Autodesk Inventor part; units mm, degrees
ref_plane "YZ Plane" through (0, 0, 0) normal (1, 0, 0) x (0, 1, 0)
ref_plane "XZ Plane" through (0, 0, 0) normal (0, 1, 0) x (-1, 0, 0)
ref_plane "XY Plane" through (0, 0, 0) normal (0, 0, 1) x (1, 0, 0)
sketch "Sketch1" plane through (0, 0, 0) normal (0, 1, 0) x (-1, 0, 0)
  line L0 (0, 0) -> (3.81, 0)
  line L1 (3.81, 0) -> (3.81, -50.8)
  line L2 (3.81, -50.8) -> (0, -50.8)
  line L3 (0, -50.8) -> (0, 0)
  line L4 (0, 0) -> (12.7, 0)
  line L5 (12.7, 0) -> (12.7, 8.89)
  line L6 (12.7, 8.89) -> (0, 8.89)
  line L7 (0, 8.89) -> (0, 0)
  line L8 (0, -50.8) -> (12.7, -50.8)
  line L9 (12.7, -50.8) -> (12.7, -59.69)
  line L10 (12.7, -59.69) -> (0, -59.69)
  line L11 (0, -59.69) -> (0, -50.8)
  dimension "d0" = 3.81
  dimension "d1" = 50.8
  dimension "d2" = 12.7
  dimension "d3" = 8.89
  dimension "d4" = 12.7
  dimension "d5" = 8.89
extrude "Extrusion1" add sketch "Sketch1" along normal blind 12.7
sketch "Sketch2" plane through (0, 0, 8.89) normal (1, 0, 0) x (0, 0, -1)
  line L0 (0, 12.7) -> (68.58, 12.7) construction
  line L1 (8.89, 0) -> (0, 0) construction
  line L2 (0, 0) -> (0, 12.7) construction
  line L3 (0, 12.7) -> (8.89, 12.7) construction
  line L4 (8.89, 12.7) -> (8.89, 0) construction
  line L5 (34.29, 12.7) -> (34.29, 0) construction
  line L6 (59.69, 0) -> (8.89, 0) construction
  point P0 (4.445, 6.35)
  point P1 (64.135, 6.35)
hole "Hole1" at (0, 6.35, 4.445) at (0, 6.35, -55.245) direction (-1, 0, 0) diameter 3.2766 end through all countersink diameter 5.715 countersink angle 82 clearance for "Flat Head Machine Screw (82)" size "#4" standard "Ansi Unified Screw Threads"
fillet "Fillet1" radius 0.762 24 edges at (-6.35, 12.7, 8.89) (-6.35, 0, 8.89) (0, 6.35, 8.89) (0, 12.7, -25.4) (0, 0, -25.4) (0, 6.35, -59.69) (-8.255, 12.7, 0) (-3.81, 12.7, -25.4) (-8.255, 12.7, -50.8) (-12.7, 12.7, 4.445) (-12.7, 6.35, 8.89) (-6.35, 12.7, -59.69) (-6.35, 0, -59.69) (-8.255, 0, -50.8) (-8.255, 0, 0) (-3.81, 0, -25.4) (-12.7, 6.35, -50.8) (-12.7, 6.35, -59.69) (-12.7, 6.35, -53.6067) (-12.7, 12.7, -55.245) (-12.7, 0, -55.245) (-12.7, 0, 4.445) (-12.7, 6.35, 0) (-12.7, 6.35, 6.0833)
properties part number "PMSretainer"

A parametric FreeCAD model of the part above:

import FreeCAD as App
import Part
import Sketcher
Q = App.Units.Quantity


def edges_at(feature, points):
    """Names of the edges that pass closest to the given points."""
    edges = feature.Shape.Edges
    near = lambda p: min(range(len(edges)), key=lambda i: edges[i].distToShape(Part.Vertex(*p))[0])
    return sorted({f"Edge{near(p) + 1}" for p in points})


def add_polygon(sketch, points):
    """Adds a closed chain of lines whose ends are joined by coincident constraints."""
    first, n = sketch.GeometryCount, len(points)
    for a, b in zip(points, points[1:] + points[:1]):
        sketch.addGeometry(Part.LineSegment(App.Vector(*a, 0), App.Vector(*b, 0)), False)
    for i in range(n):
        sketch.addConstraint(Sketcher.Constraint("Coincident", first + i, 2, first + (i + 1) % n, 1))

doc = App.newDocument("Part")
body = doc.addObject("PartDesign::Body", "Body")

# Sketch on XZ plane
sketch1 = body.newObject("Sketcher::SketchObject", "Sketch")
sketch1.AttachmentSupport = (doc.getObject("XZ_Plane"), [""])
sketch1.MapMode = "FlatFace"
add_polygon(sketch1, [(0, 9), (0, -60), (-13, -60), (-13, -51), (-4, -51), (-4, 0), (-13, 0), (-13, 9)])  # lines 0-7
sketch1.addConstraint(Sketcher.Constraint("Vertical", 0))
sketch1.addConstraint(Sketcher.Constraint("Horizontal", 1))
sketch1.addConstraint(Sketcher.Constraint("Vertical", 2))
sketch1.addConstraint(Sketcher.Constraint("Horizontal", 3))
sketch1.addConstraint(Sketcher.Constraint("Vertical", 4))
sketch1.addConstraint(Sketcher.Constraint("Horizontal", 5))
sketch1.addConstraint(Sketcher.Constraint("Vertical", 6))
sketch1.addConstraint(Sketcher.Constraint("Horizontal", 7))
sketch1.addConstraint(Sketcher.Constraint("PointOnObject", 0, 2, -2))
sketch1.addConstraint(Sketcher.Constraint("PointOnObject", 4, 2, -1))
sketch1.addConstraint(Sketcher.Constraint("Vertical", 2, 2, 5, 2))
sketch1.addConstraint(Sketcher.Constraint("Equal", 5, 2))
sketch1.addConstraint(Sketcher.Constraint("Equal", 2, 6))
sketch1.addConstraint(Sketcher.Constraint("DistanceY", 4, 1, 4, 2, Q("2 in")))
sketch1.addConstraint(Sketcher.Constraint("DistanceX", 1, 2, 1, 1, Q("0.5 in")))
sketch1.addConstraint(Sketcher.Constraint("DistanceX", 3, 1, 3, 2, Q("0.35 in")))
pad1 = body.newObject("PartDesign::Pad", "Pad")
pad1.Profile = sketch1
pad1.Length = Q("0.5 in")
pad1.Reversed = True

# Sketch on YZ plane
sketch2 = body.newObject("Sketcher::SketchObject", "Sketch001")
sketch2.AttachmentSupport = (doc.getObject("YZ_Plane"), [""])
sketch2.MapMode = "FlatFace"
sketch2.addGeometry(Part.Circle(App.Vector(6.3, 4.4, 0), App.Vector(0, 0, 1), 1.6), False)
sketch2.addGeometry(Part.Circle(App.Vector(6.3, -55.2, 0), App.Vector(0, 0, 1), 1.6), False)
sketch2.addConstraint(Sketcher.Constraint("Equal", 0, 1))
sketch2.addConstraint(Sketcher.Constraint("Vertical", 0, 3, 1, 3))
sketch2.addConstraint(Sketcher.Constraint("Diameter", 0, Q("0.129 in")))
sketch2.addConstraint(Sketcher.Constraint("DistanceX", -1, 1, 0, 3, Q("0.25 in")))
sketch2.addConstraint(Sketcher.Constraint("DistanceY", 1, 3, 0, 3, Q("2.35 in")))
sketch2.addConstraint(Sketcher.Constraint("DistanceY", -1, 1, 0, 3, Q("0.175 in")))
doc.recompute()
hole = body.newObject("PartDesign::Hole", "Hole")
hole.Profile = sketch2
hole.ThreadType = "None"
hole.Diameter = Q("0.129 in")
hole.DepthType = "ThroughAll"
hole.HoleCutType = "Countersink"
hole.HoleCutDiameter = Q("0.225 in")
hole.HoleCutCountersinkAngle = 82
doc.recompute()

fillet = body.newObject("PartDesign::Fillet", "Fillet")
fillet.Base = (hole, edges_at(hole, [
    (-6.35, 12.7, 8.89),
    (-6.35, 0, 8.89),
    (0, 6.35, 8.89),
    (0, 12.7, -25.4),
    (0, 0, -25.4),
    (0, 6.35, -59.69),
    (-8.255, 12.7, 0),
    (-3.81, 12.7, -25.4),
    (-8.255, 12.7, -50.8),
    (-12.7, 12.7, 4.445),
    (-12.7, 6.35, 8.89),
    (-6.35, 12.7, -59.69),
    (-6.35, 0, -59.69),
    (-8.255, 0, -50.8),
    (-8.255, 0, 0),
    (-3.81, 0, -25.4),
    (-12.7, 6.35, -50.8),
    (-12.7, 6.35, -59.69),
    (-12.7, 6.35, -53.607),
    (-12.7, 12.7, -55.245),
    (-12.7, 0, -55.245),
    (-12.7, 0, 4.445),
    (-12.7, 6.35, 0),
    (-12.7, 6.35, 6.083),
]))
fillet.Radius = Q("0.03 in")

doc.recompute()
